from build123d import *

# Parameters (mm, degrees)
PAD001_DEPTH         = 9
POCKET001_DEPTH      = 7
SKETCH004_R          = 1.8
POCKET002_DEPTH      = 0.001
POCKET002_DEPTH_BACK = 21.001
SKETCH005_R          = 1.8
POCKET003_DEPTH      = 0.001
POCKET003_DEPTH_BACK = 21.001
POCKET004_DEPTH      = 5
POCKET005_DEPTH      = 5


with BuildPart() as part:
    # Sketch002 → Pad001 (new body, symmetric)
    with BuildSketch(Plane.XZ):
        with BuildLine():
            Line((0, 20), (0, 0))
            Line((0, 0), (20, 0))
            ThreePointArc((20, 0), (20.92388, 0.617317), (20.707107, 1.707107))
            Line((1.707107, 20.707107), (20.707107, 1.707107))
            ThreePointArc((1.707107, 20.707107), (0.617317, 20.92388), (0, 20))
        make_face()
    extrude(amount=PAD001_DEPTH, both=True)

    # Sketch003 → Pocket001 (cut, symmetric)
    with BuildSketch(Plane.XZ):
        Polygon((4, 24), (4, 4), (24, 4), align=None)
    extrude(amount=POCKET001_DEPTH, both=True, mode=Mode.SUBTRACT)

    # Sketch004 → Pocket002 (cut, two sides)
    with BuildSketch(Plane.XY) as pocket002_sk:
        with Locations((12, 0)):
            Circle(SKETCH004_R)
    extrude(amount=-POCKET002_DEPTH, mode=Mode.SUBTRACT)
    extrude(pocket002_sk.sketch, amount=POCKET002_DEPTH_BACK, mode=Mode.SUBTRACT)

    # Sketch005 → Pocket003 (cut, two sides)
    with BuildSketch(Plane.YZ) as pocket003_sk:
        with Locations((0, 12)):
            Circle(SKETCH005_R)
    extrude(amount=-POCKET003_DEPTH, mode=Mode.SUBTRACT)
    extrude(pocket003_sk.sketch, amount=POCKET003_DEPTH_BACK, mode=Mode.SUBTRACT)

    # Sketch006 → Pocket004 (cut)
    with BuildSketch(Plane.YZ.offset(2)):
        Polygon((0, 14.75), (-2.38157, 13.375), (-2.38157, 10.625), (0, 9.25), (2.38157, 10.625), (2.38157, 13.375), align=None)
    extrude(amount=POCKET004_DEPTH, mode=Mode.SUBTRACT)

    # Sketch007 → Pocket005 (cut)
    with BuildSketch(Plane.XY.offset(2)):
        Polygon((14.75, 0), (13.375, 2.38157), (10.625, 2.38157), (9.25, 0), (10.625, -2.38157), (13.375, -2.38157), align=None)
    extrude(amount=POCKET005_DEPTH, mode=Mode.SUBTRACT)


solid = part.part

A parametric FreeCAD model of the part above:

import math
import FreeCAD as App
import Part
import Sketcher
from FreeCAD import Vector
Q = App.Units.Quantity

doc = App.newDocument("Part")
params = doc.addObject("Spreadsheet::Sheet", "Params")
for row, (alias, value) in enumerate([
    ("sketch1_radius", "1 mm"),
    ("sketch1_width", "20 mm"),
    ("pad1_length", "18 mm"),
    ("sketch2_width", "20 mm"),
    ("pocket1_length", "14 mm"),
    ("sketch3_diameter", "3.6 mm"),
    ("sketch4_diameter", "3.6 mm"),
    ("sketch5_height", "2.75 mm"),
    ("pocket4_length", "5 mm"),
    ("sketch6_width", "2.75 mm"),
    ("pocket5_length", "5 mm"),
], start=1):
    params.set(f"A{row}", alias)
    params.set(f"B{row}", "=" + value)
    params.setAlias(f"B{row}", alias)

body = doc.addObject("PartDesign::Body", "Body")

# Sketch on XZ plane
sketch1 = body.newObject("Sketcher::SketchObject", "Sketch")
sketch1.AttachmentSupport = (doc.getObject("XZ_Plane"), [""])
sketch1.MapMode = "FlatFace"
sketch1.addGeometry([
    Part.LineSegment(Vector(0, 20, 0), Vector(0, 0, 0)),  # 0
    Part.LineSegment(Vector(0, 0, 0), Vector(20, 0, 0)),  # 1
    Part.ArcOfCircle(Part.Circle(Vector(20, 1, 0), Vector(0, 0, 1), 1), math.radians(-90), math.radians(45)),  # 2
    Part.LineSegment(Vector(20.7, 1.7, 0), Vector(1.7, 20.7, 0)),  # 3
    Part.ArcOfCircle(Part.Circle(Vector(1, 20, 0), Vector(0, 0, 1), 1), math.radians(45), math.radians(180)),  # 4
], False)
sketch1.addConstraint([
    Sketcher.Constraint("Coincident", 0, 2, 1, 1),
    Sketcher.Constraint("Tangent", 1, 2, 2, 1),
    Sketcher.Constraint("Tangent", 2, 2, 3, 1),
    Sketcher.Constraint("Tangent", 3, 2, 4, 1),
    Sketcher.Constraint("Tangent", 4, 2, 0, 1),
    Sketcher.Constraint("Vertical", 0),
    Sketcher.Constraint("Horizontal", 1),
    Sketcher.Constraint("Coincident", 0, 2, -1, 1),
    Sketcher.Constraint("Equal", 2, 4),
    Sketcher.Constraint("Equal", 1, 0),
    Sketcher.Constraint("Radius", 2, 1.0),
    Sketcher.Constraint("DistanceX", 1, 1, 1, 2, 20.0),
])
sketch1.setExpression("Constraints[10]", "Params.sketch1_radius")
sketch1.setExpression("Constraints[11]", "Params.sketch1_width")
pad1 = body.newObject("PartDesign::Pad", "Pad")
pad1.Profile = sketch1
pad1.setExpression("Length", "Params.pad1_length")
pad1.Midplane = True

# Sketch on XZ plane
sketch2 = body.newObject("Sketcher::SketchObject", "Sketch001")
sketch2.AttachmentSupport = (doc.getObject("XZ_Plane"), [""])
sketch2.MapMode = "FlatFace"
sketch2.addGeometry([
    Part.LineSegment(Vector(4, 24, 0), Vector(4, 4, 0)),
    Part.LineSegment(Vector(4, 4, 0), Vector(24, 4, 0)),
    Part.LineSegment(Vector(24, 4, 0), Vector(4, 24, 0)),
], False)
sketch2.addConstraint([
    Sketcher.Constraint("Coincident", 0, 2, 1, 1),
    Sketcher.Constraint("Coincident", 1, 2, 2, 1),
    Sketcher.Constraint("Coincident", 2, 2, 0, 1),
    Sketcher.Constraint("Vertical", 0),
    Sketcher.Constraint("Horizontal", 1),
    Sketcher.Constraint("Equal", 1, 0),
    Sketcher.Constraint("DistanceX", 1, 1, 1, 2, 20.0),
    Sketcher.Constraint("DistanceX", -1, 1, 0, 2, 4.0),
    Sketcher.Constraint("DistanceY", -1, 1, 0, 2, 4.0),
])
sketch2.setExpression("Constraints[6]", "Params.sketch2_width")
pocket1 = body.newObject("PartDesign::Pocket", "Pocket")
pocket1.Profile = sketch2
pocket1.setExpression("Length", "Params.pocket1_length")
pocket1.Midplane = True

# Sketch on XY plane
sketch3 = body.newObject("Sketcher::SketchObject", "Sketch002")
sketch3.AttachmentSupport = (doc.getObject("XY_Plane"), [""])
sketch3.MapMode = "FlatFace"
sketch3.addGeometry(Part.Circle(Vector(12, 0, 0), Vector(0, 0, 1), 1.8), False)
sketch3.addConstraint([
    Sketcher.Constraint("PointOnObject", 0, 3, -1),
    Sketcher.Constraint("Diameter", 0, 3.6),
    Sketcher.Constraint("DistanceX", -1, 1, 0, 3, 12.0),
])
sketch3.setExpression("Constraints[1]", "Params.sketch3_diameter")
pocket2 = body.newObject("PartDesign::Pocket", "Pocket001")
pocket2.Profile = sketch3
pocket2.Type = "ThroughAll"
pocket2.Midplane = True

# Sketch on YZ plane
sketch4 = body.newObject("Sketcher::SketchObject", "Sketch003")
sketch4.AttachmentSupport = (doc.getObject("YZ_Plane"), [""])
sketch4.MapMode = "FlatFace"
sketch4.addGeometry(Part.Circle(Vector(0, 12, 0), Vector(0, 0, 1), 1.8), False)
sketch4.addConstraint([
    Sketcher.Constraint("PointOnObject", 0, 3, -2),
    Sketcher.Constraint("Diameter", 0, 3.6),
    Sketcher.Constraint("DistanceY", -1, 1, 0, 3, 12.0),
])
sketch4.setExpression("Constraints[1]", "Params.sketch4_diameter")
pocket3 = body.newObject("PartDesign::Pocket", "Pocket002")
pocket3.Profile = sketch4
pocket3.Type = "ThroughAll"
pocket3.Midplane = True

# Sketch on YZ plane
sketch5 = body.newObject("Sketcher::SketchObject", "Sketch004")
sketch5.AttachmentSupport = (doc.getObject("YZ_Plane"), [""])
sketch5.MapMode = "FlatFace"
sketch5.AttachmentOffset = App.Placement(Vector(0, 0, 2), App.Rotation())
sketch5.addGeometry([
    Part.LineSegment(Vector(0, 14.8, 0), Vector(-2.4, 13.4, 0)),  # 0
    Part.LineSegment(Vector(-2.4, 13.4, 0), Vector(-2.4, 10.6, 0)),  # 1
    Part.LineSegment(Vector(-2.4, 10.6, 0), Vector(0, 9.2, 0)),  # 2
    Part.LineSegment(Vector(0, 9.2, 0), Vector(2.4, 10.6, 0)),  # 3
    Part.LineSegment(Vector(2.4, 10.6, 0), Vector(2.4, 13.4, 0)),  # 4
    Part.LineSegment(Vector(2.4, 13.4, 0), Vector(0, 14.8, 0)),  # 5
], False)
sketch5.addConstraint([
    Sketcher.Constraint("Coincident", 0, 2, 1, 1),
    Sketcher.Constraint("Coincident", 1, 2, 2, 1),
    Sketcher.Constraint("Coincident", 2, 2, 3, 1),
    Sketcher.Constraint("Coincident", 3, 2, 4, 1),
    Sketcher.Constraint("Coincident", 4, 2, 5, 1),
    Sketcher.Constraint("Coincident", 5, 2, 0, 1),
    Sketcher.Constraint("Vertical", 1),
    Sketcher.Constraint("Vertical", 4),
    Sketcher.Constraint("Symmetric", 1, 2, 3, 2, -2),
    Sketcher.Constraint("PointOnObject", 2, 2, -2),
    Sketcher.Constraint("PointOnObject", 5, 2, -2),
    Sketcher.Constraint("Parallel", 0, 3),
    Sketcher.Constraint("Parallel", 2, 5),
    Sketcher.Constraint("Angle", 0, Q("-150.000001 deg")),
    Sketcher.Constraint("DistanceY", 1, 2, 1, 1, 2.75),
    Sketcher.Constraint("DistanceY", 2, 2, 5, 2, 5.5),
    Sketcher.Constraint("DistanceY", -1, 1, 2, 2, 9.25),
])
sketch5.setExpression("Constraints[14]", "Params.sketch5_height")
pocket4 = body.newObject("PartDesign::Pocket", "Pocket003")
pocket4.Profile = sketch5
pocket4.setExpression("Length", "Params.pocket4_length")
pocket4.Reversed = True

# Sketch on XY plane
sketch6 = body.newObject("Sketcher::SketchObject", "Sketch005")
sketch6.AttachmentSupport = (doc.getObject("XY_Plane"), [""])
sketch6.MapMode = "FlatFace"
sketch6.AttachmentOffset = App.Placement(Vector(0, 0, 2), App.Rotation())
sketch6.addGeometry([
    Part.LineSegment(Vector(14.8, 0, 0), Vector(13.4, 2.4, 0)),  # 0
    Part.LineSegment(Vector(13.4, 2.4, 0), Vector(10.6, 2.4, 0)),  # 1
    Part.LineSegment(Vector(10.6, 2.4, 0), Vector(9.2, 0, 0)),  # 2
    Part.LineSegment(Vector(9.2, 0, 0), Vector(10.6, -2.4, 0)),  # 3
    Part.LineSegment(Vector(10.6, -2.4, 0), Vector(13.4, -2.4, 0)),  # 4
    Part.LineSegment(Vector(13.4, -2.4, 0), Vector(14.8, 0, 0)),  # 5
], False)
sketch6.addConstraint([
    Sketcher.Constraint("Coincident", 0, 2, 1, 1),
    Sketcher.Constraint("Coincident", 1, 2, 2, 1),
    Sketcher.Constraint("Coincident", 2, 2, 3, 1),
    Sketcher.Constraint("Coincident", 3, 2, 4, 1),
    Sketcher.Constraint("Coincident", 4, 2, 5, 1),
    Sketcher.Constraint("Coincident", 5, 2, 0, 1),
    Sketcher.Constraint("Horizontal", 1),
    Sketcher.Constraint("Horizontal", 4),
    Sketcher.Constraint("Symmetric", 1, 2, 3, 2, -1),
    Sketcher.Constraint("PointOnObject", 2, 2, -1),
    Sketcher.Constraint("PointOnObject", 5, 2, -1),
    Sketcher.Constraint("Parallel", 0, 3),
    Sketcher.Constraint("Parallel", 2, 5),
    Sketcher.Constraint("Angle", 0, Q("119.999999 deg")),
    Sketcher.Constraint("DistanceX", 1, 2, 1, 1, 2.75),
    Sketcher.Constraint("DistanceX", 2, 2, 5, 2, 5.5),
    Sketcher.Constraint("DistanceX", -1, 1, 2, 2, 9.25),
])
sketch6.setExpression("Constraints[14]", "Params.sketch6_width")
pocket5 = body.newObject("PartDesign::Pocket", "Pocket004")
pocket5.Profile = sketch6
pocket5.setExpression("Length", "Params.pocket5_length")
pocket5.Reversed = True

doc.recompute()
